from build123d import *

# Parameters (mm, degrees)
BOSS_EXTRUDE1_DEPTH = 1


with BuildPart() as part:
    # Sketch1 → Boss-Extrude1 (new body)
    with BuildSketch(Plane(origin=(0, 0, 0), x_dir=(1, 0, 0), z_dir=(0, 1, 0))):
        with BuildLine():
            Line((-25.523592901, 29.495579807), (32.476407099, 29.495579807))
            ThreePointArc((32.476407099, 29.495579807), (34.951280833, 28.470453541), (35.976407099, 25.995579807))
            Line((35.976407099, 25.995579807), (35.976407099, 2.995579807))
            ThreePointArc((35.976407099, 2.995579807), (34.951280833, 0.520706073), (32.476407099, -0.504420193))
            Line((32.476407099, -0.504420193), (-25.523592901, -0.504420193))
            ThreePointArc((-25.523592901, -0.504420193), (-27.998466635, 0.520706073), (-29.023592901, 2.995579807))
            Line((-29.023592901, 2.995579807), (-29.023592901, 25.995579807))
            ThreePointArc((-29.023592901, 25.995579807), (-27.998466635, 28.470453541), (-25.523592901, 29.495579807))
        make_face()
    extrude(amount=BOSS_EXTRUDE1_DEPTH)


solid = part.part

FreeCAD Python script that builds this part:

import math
import FreeCAD as App
import Part
import Sketcher

V = App.Vector

doc = App.newDocument("Part")
body = doc.addObject("PartDesign::Body", "Body")

# Sketch on XZ plane
sketch1 = body.newObject("Sketcher::SketchObject", "Sketch")
sketch1.AttachmentSupport = (doc.getObject("XZ_Plane"), [""])
sketch1.MapMode = "FlatFace"
sketch1.addGeometry(Part.LineSegment(V(32.5, -29.5, 0), V(-25.5, -29.5, 0)), False)
sketch1.addGeometry(Part.ArcOfCircle(Part.Circle(V(-25.5, -26, 0), V(0, 0, 1), 3.5), math.radians(-180), math.radians(-90)), False)
sketch1.addGeometry(Part.LineSegment(V(-29, -26, 0), V(-29, -3, 0)), False)
sketch1.addGeometry(Part.ArcOfCircle(Part.Circle(V(-25.5, -3, 0), V(0, 0, 1), 3.5), math.radians(90), math.radians(180)), False)
sketch1.addGeometry(Part.LineSegment(V(-25.5, 0.5, 0), V(32.5, 0.5, 0)), False)
sketch1.addGeometry(Part.ArcOfCircle(Part.Circle(V(32.5, -3, 0), V(0, 0, 1), 3.5), math.radians(0), math.radians(90)), False)
sketch1.addGeometry(Part.LineSegment(V(36, -3, 0), V(36, -26, 0)), False)
sketch1.addGeometry(Part.ArcOfCircle(Part.Circle(V(32.5, -26, 0), V(0, 0, 1), 3.5), math.radians(-90), math.radians(0)), False)
sketch1.addConstraint(Sketcher.Constraint("Tangent", 0, 2, 1, 2))
sketch1.addConstraint(Sketcher.Constraint("Tangent", 1, 1, 2, 1))
sketch1.addConstraint(Sketcher.Constraint("Tangent", 2, 2, 3, 2))
sketch1.addConstraint(Sketcher.Constraint("Tangent", 3, 1, 4, 1))
sketch1.addConstraint(Sketcher.Constraint("Tangent", 4, 2, 5, 2))
sketch1.addConstraint(Sketcher.Constraint("Tangent", 5, 1, 6, 1))
sketch1.addConstraint(Sketcher.Constraint("Tangent", 6, 2, 7, 2))
sketch1.addConstraint(Sketcher.Constraint("Tangent", 7, 1, 0, 1))
sketch1.addConstraint(Sketcher.Constraint("Horizontal", 0))
sketch1.addConstraint(Sketcher.Constraint("Vertical", 2))
sketch1.addConstraint(Sketcher.Constraint("Horizontal", 4))
sketch1.addConstraint(Sketcher.Constraint("Vertical", 6))
sketch1.addConstraint(Sketcher.Constraint("Equal", 1, 3))
sketch1.addConstraint(Sketcher.Constraint("Equal", 3, 5))
sketch1.addConstraint(Sketcher.Constraint("Equal", 5, 7))
sketch1.addConstraint(Sketcher.Constraint("Radius", 1, 3.5))
sketch1.addConstraint(Sketcher.Constraint("DistanceX", 0, 2, 0, 1, 58.0))
sketch1.addConstraint(Sketcher.Constraint("DistanceY", 2, 1, 2, 2, 23.0))
sketch1.addConstraint(Sketcher.Constraint("DistanceY", 1, 3, -1, 1, 25.99558))
sketch1.addConstraint(Sketcher.Constraint("DistanceX", 1, 3, -1, 1, 25.523593))
pad1 = body.newObject("PartDesign::Pad", "Pad")
pad1.Profile = sketch1
pad1.Length = 1
pad1.Reversed = True

doc.recompute()
